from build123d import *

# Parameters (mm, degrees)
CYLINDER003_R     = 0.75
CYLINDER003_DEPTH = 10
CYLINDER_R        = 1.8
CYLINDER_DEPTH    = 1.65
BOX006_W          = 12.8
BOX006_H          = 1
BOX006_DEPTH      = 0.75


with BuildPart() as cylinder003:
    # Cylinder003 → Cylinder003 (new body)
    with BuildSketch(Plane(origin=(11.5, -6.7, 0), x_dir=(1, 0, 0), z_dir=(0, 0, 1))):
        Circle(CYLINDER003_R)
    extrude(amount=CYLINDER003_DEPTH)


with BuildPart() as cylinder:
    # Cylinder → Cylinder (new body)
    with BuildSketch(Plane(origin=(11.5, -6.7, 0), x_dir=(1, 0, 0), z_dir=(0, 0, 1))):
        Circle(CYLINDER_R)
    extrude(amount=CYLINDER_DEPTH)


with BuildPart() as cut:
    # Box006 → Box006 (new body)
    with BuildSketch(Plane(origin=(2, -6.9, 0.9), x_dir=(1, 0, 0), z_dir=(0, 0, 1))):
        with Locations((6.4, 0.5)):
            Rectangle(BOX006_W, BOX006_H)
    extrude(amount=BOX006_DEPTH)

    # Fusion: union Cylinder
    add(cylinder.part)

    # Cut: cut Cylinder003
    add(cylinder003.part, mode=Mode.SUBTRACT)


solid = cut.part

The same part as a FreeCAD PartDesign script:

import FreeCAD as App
import Part
import Sketcher

V = App.Vector
Q = App.Units.Quantity


def add_polygon(sketch, points):
    """Adds a closed chain of lines whose ends are joined by coincident constraints."""
    first, n = sketch.GeometryCount, len(points)
    for a, b in zip(points, points[1:] + points[:1]):
        sketch.addGeometry(Part.LineSegment(App.Vector(*a, 0), App.Vector(*b, 0)), False)
    for i in range(n):
        sketch.addConstraint(Sketcher.Constraint("Coincident", first + i, 2, first + (i + 1) % n, 1))

doc = App.newDocument("Part")
params = doc.addObject("Spreadsheet::Sheet", "Params")
for row, (alias, value) in enumerate([
    ("sketch1_diameter", "1.5 mm"),
    ("pad1_length", "10 mm"),
    ("sketch2_diameter", "3.6 mm"),
    ("pad2_length", "1.65 mm"),
    ("sketch3_height", "1 mm"),
    ("sketch3_width", "12.8 mm"),
    ("pad3_length", "0.75 mm"),
], start=1):
    params.set(f"A{row}", alias)
    params.set(f"B{row}", "=" + value)
    params.setAlias(f"B{row}", alias)

body = doc.addObject("PartDesign::Body", "Body")

# Sketch on XY plane
sketch1 = body.newObject("Sketcher::SketchObject", "Sketch")
sketch1.AttachmentSupport = (doc.getObject("XY_Plane"), [""])
sketch1.MapMode = "FlatFace"
sketch1.addGeometry(Part.Circle(V(11.5, -6.7, 0), V(0, 0, 1), 0.8), False)
sketch1.addConstraint([
    Sketcher.Constraint("Diameter", 0, Q("1.5 mm")),
    Sketcher.Constraint("DistanceX", -1, 1, 0, 3, Q("11.5 mm")),
    Sketcher.Constraint("DistanceY", 0, 3, -1, 1, Q("6.7 mm")),
])
sketch1.setExpression("Constraints[0]", "Params.sketch1_diameter")
pad1 = body.newObject("PartDesign::Pad", "Pad")
pad1.Profile = sketch1
pad1.setExpression("Length", "Params.pad1_length")
body2 = doc.addObject("PartDesign::Body", "Body001")

# Sketch on XY plane
sketch2 = body2.newObject("Sketcher::SketchObject", "Sketch001")
sketch2.AttachmentSupport = (doc.getObject("XY_Plane001"), [""])
sketch2.MapMode = "FlatFace"
sketch2.addGeometry(Part.Circle(V(11.5, -6.7, 0), V(0, 0, 1), 1.8), False)
sketch2.addConstraint([
    Sketcher.Constraint("Diameter", 0, Q("3.6 mm")),
    Sketcher.Constraint("DistanceX", -1, 1, 0, 3, Q("11.5 mm")),
    Sketcher.Constraint("DistanceY", 0, 3, -1, 1, Q("6.7 mm")),
])
sketch2.setExpression("Constraints[0]", "Params.sketch2_diameter")
pad2 = body2.newObject("PartDesign::Pad", "Pad001")
pad2.Profile = sketch2
pad2.setExpression("Length", "Params.pad2_length")
body3 = doc.addObject("PartDesign::Body", "Body002")

# Sketch on XY plane
sketch3 = body3.newObject("Sketcher::SketchObject", "Sketch002")
sketch3.AttachmentSupport = (doc.getObject("XY_Plane002"), [""])
sketch3.MapMode = "FlatFace"
sketch3.AttachmentOffset = App.Placement(V(0, 0, 0.9), App.Rotation())
add_polygon(sketch3, [(2, -5.9), (2, -6.9), (14.8, -6.9), (14.8, -5.9)])  # lines 0-3
sketch3.addConstraint([
    Sketcher.Constraint("Vertical", 0),
    Sketcher.Constraint("Horizontal", 1),
    Sketcher.Constraint("Vertical", 2),
    Sketcher.Constraint("Horizontal", 3),
    Sketcher.Constraint("DistanceY", 0, 2, 0, 1, Q("1 mm")),
    Sketcher.Constraint("DistanceX", 1, 1, 1, 2, Q("12.8 mm")),
    Sketcher.Constraint("DistanceX", -1, 1, 0, 2, Q("2 mm")),
    Sketcher.Constraint("DistanceY", 0, 2, -1, 1, Q("6.9 mm")),
])
sketch3.setExpression("Constraints[8]", "Params.sketch3_height")
sketch3.setExpression("Constraints[9]", "Params.sketch3_width")
pad3 = body3.newObject("PartDesign::Pad", "Pad002")
pad3.Profile = sketch3
pad3.setExpression("Length", "Params.pad3_length")
doc.recompute()

boolean = body3.newObject("PartDesign::Boolean", "Boolean")
boolean.Type = "Fuse"
boolean.addObjects([body2])
doc.recompute()

boolean2 = body3.newObject("PartDesign::Boolean", "Boolean001")
boolean2.Type = "Cut"
boolean2.addObjects([body])

doc.recompute()
